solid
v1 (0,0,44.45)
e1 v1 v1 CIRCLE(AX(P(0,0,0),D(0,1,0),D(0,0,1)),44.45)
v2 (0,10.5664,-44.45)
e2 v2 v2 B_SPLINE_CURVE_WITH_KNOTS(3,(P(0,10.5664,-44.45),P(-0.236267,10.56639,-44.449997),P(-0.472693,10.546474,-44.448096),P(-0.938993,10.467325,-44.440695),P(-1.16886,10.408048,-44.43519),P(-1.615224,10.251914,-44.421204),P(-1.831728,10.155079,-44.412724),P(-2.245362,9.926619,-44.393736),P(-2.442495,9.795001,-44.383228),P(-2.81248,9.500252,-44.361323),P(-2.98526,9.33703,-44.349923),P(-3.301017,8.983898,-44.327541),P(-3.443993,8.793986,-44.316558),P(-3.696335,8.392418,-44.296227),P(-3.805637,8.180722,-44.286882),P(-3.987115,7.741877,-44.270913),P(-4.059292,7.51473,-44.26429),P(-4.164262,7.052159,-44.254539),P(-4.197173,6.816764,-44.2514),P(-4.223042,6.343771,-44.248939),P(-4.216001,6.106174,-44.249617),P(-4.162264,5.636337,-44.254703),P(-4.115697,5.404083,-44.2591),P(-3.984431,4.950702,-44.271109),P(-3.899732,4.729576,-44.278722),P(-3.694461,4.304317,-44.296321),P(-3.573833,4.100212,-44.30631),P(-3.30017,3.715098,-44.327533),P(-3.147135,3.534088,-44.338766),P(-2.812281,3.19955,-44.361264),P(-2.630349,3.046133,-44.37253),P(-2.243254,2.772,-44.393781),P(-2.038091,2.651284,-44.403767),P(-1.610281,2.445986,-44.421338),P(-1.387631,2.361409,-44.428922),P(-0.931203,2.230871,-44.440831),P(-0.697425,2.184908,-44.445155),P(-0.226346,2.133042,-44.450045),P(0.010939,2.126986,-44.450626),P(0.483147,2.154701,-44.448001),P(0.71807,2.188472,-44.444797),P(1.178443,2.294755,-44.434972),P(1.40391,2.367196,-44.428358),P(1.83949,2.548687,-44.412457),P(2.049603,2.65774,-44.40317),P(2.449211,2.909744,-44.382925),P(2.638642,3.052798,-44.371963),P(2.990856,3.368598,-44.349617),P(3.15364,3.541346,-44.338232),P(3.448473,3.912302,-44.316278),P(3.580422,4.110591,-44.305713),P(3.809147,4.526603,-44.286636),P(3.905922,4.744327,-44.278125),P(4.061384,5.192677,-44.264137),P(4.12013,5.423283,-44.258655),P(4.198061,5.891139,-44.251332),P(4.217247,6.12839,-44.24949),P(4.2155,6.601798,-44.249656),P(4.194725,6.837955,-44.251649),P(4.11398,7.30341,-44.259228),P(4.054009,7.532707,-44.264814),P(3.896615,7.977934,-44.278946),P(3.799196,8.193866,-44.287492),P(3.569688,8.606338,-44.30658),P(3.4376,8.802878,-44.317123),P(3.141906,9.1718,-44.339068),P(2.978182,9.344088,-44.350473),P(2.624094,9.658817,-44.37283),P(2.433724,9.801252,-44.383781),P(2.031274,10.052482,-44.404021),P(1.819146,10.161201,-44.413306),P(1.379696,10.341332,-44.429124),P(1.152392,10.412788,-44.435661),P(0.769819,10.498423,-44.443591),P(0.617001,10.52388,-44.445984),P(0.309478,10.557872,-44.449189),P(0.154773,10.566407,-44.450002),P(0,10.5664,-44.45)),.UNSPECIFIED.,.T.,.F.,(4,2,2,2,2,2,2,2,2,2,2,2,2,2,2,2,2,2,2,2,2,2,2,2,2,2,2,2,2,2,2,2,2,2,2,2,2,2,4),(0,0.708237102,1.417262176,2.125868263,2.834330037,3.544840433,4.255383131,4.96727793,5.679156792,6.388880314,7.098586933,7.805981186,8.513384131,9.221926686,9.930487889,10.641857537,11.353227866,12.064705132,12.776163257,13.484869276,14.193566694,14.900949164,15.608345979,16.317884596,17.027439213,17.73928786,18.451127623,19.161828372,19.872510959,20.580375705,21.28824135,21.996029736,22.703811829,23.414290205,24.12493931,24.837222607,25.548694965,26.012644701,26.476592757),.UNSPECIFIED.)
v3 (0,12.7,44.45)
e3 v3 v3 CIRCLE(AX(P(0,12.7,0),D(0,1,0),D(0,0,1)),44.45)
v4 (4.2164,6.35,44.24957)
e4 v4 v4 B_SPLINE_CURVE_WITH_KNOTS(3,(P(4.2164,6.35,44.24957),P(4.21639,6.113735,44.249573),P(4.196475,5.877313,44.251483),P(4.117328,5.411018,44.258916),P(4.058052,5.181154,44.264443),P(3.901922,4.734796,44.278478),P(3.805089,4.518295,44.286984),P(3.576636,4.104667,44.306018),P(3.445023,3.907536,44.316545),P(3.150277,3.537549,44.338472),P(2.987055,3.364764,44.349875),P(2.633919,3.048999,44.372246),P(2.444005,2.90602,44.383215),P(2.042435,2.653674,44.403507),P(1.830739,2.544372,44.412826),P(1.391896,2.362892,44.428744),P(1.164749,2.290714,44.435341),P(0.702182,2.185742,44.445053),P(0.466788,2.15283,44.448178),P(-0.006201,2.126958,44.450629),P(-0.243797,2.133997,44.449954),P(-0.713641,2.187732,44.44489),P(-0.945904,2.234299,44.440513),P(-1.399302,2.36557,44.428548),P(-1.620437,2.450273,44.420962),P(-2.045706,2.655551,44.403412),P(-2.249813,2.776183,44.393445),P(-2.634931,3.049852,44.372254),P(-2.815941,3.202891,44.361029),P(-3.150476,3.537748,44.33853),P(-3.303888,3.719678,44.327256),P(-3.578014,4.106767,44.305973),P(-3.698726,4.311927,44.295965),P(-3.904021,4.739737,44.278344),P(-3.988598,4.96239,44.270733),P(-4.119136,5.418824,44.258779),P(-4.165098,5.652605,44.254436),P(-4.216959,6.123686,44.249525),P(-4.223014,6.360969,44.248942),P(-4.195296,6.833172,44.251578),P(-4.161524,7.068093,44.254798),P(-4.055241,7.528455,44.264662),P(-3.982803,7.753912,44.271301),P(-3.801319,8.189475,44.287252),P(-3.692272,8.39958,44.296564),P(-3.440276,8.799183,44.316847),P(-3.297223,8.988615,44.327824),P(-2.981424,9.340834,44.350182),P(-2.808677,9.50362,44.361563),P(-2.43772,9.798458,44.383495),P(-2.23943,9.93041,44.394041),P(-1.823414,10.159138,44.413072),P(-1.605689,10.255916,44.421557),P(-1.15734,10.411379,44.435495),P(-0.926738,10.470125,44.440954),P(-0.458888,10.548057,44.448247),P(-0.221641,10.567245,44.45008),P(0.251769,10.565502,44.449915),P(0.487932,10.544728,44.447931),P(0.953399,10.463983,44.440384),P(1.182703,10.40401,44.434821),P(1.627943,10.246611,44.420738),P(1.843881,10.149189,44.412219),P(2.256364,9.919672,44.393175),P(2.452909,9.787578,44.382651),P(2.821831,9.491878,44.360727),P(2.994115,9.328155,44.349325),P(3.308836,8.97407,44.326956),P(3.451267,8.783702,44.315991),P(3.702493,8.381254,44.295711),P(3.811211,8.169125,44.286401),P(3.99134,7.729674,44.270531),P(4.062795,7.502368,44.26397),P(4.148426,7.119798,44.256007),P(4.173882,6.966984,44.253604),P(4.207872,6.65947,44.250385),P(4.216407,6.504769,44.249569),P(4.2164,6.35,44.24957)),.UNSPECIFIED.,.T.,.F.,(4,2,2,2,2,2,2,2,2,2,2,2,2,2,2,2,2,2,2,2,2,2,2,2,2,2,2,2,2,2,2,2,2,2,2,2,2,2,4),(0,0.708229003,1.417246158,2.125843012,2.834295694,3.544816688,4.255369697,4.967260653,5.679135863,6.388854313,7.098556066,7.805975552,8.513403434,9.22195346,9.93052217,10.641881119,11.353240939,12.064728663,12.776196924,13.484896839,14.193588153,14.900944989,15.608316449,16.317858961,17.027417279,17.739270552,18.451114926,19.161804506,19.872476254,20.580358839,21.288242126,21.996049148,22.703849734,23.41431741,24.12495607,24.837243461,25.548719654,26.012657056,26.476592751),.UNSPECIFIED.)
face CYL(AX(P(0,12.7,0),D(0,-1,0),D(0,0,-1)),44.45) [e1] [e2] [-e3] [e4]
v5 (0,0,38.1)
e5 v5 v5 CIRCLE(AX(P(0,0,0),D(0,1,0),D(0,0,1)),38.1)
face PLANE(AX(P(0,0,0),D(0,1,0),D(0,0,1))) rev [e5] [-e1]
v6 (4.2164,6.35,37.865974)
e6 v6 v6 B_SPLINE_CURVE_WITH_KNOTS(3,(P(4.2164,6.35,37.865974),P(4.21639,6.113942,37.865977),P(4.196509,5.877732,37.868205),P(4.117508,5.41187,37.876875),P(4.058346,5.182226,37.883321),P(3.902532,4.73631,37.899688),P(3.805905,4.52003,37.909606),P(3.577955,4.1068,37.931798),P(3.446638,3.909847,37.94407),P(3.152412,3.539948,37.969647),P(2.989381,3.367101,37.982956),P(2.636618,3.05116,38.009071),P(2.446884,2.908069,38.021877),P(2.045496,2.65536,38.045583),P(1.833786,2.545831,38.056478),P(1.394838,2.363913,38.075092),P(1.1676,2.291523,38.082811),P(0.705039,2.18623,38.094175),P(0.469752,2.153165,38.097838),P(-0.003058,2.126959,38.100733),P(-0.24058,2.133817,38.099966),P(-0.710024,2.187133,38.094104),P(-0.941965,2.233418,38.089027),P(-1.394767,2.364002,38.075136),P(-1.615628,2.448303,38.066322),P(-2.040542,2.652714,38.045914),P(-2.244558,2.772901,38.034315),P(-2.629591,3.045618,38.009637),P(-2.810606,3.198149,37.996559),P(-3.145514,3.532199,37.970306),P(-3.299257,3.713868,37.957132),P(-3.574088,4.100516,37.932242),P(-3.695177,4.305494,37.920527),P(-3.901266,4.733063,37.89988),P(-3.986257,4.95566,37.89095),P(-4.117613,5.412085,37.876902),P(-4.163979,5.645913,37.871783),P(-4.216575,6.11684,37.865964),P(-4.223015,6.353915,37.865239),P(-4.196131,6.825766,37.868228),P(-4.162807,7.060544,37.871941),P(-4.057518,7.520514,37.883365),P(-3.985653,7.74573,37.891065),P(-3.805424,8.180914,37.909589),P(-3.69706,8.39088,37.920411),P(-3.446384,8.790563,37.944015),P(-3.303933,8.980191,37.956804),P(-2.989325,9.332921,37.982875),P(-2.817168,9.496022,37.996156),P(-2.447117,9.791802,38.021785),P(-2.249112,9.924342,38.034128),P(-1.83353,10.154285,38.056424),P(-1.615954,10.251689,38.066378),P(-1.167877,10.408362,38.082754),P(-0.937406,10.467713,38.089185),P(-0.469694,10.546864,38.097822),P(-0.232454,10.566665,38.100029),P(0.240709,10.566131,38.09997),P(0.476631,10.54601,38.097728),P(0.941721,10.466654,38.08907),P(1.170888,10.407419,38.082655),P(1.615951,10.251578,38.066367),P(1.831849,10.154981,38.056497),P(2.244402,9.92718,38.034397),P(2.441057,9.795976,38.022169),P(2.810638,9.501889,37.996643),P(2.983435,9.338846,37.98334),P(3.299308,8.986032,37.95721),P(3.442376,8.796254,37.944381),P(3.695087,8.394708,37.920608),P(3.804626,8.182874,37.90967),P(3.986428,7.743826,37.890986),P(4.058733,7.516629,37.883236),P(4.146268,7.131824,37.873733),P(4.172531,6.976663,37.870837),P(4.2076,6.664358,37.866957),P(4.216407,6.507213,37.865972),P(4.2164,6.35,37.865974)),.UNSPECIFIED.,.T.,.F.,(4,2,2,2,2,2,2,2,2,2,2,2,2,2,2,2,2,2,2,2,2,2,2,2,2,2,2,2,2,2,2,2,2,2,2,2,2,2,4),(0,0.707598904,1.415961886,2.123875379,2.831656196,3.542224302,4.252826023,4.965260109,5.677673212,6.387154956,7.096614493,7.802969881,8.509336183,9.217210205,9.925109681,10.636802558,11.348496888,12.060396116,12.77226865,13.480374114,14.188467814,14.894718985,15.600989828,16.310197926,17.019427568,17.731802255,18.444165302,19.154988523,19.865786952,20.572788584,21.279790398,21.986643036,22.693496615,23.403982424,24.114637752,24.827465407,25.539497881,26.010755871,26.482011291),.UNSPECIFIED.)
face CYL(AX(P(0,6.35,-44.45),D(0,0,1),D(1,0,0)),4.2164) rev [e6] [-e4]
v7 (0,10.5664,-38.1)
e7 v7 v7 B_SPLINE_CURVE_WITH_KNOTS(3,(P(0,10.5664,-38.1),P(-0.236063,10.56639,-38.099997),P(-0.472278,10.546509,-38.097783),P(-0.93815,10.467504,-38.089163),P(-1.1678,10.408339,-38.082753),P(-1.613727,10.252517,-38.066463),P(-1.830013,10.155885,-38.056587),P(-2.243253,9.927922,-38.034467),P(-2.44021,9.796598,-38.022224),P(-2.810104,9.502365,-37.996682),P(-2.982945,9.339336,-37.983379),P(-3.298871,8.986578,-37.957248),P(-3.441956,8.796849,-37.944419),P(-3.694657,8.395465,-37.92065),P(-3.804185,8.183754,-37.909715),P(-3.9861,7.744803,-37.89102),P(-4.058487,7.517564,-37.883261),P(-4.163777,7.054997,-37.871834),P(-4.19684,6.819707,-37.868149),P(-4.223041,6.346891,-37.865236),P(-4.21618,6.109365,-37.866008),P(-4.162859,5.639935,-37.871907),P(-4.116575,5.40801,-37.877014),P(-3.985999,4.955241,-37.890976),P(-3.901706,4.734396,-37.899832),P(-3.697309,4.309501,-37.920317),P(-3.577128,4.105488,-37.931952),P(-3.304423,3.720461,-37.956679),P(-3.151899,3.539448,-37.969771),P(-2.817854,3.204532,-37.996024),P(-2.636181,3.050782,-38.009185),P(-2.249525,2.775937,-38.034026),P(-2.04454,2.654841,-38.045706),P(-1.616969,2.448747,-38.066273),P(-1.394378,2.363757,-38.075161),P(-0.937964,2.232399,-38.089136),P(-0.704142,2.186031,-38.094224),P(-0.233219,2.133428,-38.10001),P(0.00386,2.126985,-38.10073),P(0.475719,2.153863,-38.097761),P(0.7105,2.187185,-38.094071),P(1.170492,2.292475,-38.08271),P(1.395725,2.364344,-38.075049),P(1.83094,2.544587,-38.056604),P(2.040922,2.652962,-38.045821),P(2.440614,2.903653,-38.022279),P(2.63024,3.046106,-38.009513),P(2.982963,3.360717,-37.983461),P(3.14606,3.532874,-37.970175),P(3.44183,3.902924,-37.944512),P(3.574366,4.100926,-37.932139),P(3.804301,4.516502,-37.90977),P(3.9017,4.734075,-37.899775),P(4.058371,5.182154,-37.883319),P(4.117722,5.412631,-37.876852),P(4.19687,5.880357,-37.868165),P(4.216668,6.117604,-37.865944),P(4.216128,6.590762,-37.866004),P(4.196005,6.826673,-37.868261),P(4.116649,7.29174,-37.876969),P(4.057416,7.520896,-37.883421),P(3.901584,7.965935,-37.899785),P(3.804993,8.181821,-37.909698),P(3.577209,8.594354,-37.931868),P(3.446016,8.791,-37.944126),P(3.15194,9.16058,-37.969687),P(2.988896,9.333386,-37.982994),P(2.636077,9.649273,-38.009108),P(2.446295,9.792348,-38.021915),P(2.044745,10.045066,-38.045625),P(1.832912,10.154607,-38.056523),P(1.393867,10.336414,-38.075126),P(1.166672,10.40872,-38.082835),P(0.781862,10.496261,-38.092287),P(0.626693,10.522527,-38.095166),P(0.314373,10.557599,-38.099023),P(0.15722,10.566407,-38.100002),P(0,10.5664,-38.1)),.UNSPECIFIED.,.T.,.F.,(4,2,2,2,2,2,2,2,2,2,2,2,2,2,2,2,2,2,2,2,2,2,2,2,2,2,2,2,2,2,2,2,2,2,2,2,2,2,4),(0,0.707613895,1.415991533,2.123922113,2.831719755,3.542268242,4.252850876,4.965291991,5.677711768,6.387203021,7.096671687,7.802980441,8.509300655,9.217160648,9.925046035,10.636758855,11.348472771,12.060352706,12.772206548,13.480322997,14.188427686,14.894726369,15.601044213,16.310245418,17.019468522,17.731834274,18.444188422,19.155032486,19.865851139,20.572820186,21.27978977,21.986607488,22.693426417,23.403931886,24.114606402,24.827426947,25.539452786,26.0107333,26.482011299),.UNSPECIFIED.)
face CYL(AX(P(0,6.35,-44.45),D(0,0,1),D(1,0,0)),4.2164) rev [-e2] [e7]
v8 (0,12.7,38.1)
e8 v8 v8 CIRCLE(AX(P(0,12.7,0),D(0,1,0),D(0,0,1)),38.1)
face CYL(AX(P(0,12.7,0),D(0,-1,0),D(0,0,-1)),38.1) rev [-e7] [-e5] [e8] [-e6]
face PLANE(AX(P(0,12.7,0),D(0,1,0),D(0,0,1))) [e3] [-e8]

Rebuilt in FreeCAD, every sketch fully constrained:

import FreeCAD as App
import Part
import Sketcher

V = App.Vector
Q = App.Units.Quantity

doc = App.newDocument("Part")
params = doc.addObject("Spreadsheet::Sheet", "Params")
for row, (alias, value) in enumerate([
    ("sketch1_diameter", "3 in"),
    ("sketch1_diameter2", "3.5 in"),
    ("pad1_length", "0.5 in"),
    ("sketch2_diameter", "0.332 in"),
], start=1):
    params.set(f"A{row}", alias)
    params.set(f"B{row}", "=" + value)
    params.setAlias(f"B{row}", alias)

body = doc.addObject("PartDesign::Body", "Body")

# Sketch on XZ plane
sketch1 = body.newObject("Sketcher::SketchObject", "Sketch")
sketch1.AttachmentSupport = (doc.getObject("XZ_Plane"), [""])
sketch1.MapMode = "FlatFace"
sketch1.addGeometry(Part.Circle(V(0, 0, 0), V(0, 0, 1), 44.45), False)
sketch1.addGeometry(Part.Circle(V(0, 0, 0), V(0, 0, 1), 38.1), False)
sketch1.addConstraint(Sketcher.Constraint("Coincident", 0, 3, -1, 1))
sketch1.addConstraint(Sketcher.Constraint("Coincident", 1, 3, -1, 1))
sketch1.addConstraint(Sketcher.Constraint("Diameter", 1, Q("3 in")))
sketch1.addConstraint(Sketcher.Constraint("Diameter", 0, Q("3.5 in")))
sketch1.setExpression("Constraints[2]", "Params.sketch1_diameter")
sketch1.setExpression("Constraints[3]", "Params.sketch1_diameter2")
pad1 = body.newObject("PartDesign::Pad", "Pad")
pad1.Profile = sketch1
pad1.setExpression("Length", "Params.pad1_length")
pad1.Reversed = True

# Sketch on XY plane
sketch2 = body.newObject("Sketcher::SketchObject", "Sketch001")
sketch2.AttachmentSupport = (doc.getObject("XY_Plane"), [""])
sketch2.MapMode = "FlatFace"
sketch2.addGeometry(Part.Circle(V(0, 6.35, 0), V(0, 0, 1), 4.2164), False)
sketch2.addConstraint(Sketcher.Constraint("PointOnObject", 0, 3, -2))
sketch2.addConstraint(Sketcher.Constraint("Diameter", 0, Q("0.332 in")))
sketch2.addConstraint(Sketcher.Constraint("DistanceY", -1, 1, 0, 3, Q("0.25 in")))
sketch2.setExpression("Constraints[1]", "Params.sketch2_diameter")
pocket1 = body.newObject("PartDesign::Pocket", "Pocket")
pocket1.Profile = sketch2
pocket1.Type = "ThroughAll"
pocket1.Midplane = True

doc.recompute()
